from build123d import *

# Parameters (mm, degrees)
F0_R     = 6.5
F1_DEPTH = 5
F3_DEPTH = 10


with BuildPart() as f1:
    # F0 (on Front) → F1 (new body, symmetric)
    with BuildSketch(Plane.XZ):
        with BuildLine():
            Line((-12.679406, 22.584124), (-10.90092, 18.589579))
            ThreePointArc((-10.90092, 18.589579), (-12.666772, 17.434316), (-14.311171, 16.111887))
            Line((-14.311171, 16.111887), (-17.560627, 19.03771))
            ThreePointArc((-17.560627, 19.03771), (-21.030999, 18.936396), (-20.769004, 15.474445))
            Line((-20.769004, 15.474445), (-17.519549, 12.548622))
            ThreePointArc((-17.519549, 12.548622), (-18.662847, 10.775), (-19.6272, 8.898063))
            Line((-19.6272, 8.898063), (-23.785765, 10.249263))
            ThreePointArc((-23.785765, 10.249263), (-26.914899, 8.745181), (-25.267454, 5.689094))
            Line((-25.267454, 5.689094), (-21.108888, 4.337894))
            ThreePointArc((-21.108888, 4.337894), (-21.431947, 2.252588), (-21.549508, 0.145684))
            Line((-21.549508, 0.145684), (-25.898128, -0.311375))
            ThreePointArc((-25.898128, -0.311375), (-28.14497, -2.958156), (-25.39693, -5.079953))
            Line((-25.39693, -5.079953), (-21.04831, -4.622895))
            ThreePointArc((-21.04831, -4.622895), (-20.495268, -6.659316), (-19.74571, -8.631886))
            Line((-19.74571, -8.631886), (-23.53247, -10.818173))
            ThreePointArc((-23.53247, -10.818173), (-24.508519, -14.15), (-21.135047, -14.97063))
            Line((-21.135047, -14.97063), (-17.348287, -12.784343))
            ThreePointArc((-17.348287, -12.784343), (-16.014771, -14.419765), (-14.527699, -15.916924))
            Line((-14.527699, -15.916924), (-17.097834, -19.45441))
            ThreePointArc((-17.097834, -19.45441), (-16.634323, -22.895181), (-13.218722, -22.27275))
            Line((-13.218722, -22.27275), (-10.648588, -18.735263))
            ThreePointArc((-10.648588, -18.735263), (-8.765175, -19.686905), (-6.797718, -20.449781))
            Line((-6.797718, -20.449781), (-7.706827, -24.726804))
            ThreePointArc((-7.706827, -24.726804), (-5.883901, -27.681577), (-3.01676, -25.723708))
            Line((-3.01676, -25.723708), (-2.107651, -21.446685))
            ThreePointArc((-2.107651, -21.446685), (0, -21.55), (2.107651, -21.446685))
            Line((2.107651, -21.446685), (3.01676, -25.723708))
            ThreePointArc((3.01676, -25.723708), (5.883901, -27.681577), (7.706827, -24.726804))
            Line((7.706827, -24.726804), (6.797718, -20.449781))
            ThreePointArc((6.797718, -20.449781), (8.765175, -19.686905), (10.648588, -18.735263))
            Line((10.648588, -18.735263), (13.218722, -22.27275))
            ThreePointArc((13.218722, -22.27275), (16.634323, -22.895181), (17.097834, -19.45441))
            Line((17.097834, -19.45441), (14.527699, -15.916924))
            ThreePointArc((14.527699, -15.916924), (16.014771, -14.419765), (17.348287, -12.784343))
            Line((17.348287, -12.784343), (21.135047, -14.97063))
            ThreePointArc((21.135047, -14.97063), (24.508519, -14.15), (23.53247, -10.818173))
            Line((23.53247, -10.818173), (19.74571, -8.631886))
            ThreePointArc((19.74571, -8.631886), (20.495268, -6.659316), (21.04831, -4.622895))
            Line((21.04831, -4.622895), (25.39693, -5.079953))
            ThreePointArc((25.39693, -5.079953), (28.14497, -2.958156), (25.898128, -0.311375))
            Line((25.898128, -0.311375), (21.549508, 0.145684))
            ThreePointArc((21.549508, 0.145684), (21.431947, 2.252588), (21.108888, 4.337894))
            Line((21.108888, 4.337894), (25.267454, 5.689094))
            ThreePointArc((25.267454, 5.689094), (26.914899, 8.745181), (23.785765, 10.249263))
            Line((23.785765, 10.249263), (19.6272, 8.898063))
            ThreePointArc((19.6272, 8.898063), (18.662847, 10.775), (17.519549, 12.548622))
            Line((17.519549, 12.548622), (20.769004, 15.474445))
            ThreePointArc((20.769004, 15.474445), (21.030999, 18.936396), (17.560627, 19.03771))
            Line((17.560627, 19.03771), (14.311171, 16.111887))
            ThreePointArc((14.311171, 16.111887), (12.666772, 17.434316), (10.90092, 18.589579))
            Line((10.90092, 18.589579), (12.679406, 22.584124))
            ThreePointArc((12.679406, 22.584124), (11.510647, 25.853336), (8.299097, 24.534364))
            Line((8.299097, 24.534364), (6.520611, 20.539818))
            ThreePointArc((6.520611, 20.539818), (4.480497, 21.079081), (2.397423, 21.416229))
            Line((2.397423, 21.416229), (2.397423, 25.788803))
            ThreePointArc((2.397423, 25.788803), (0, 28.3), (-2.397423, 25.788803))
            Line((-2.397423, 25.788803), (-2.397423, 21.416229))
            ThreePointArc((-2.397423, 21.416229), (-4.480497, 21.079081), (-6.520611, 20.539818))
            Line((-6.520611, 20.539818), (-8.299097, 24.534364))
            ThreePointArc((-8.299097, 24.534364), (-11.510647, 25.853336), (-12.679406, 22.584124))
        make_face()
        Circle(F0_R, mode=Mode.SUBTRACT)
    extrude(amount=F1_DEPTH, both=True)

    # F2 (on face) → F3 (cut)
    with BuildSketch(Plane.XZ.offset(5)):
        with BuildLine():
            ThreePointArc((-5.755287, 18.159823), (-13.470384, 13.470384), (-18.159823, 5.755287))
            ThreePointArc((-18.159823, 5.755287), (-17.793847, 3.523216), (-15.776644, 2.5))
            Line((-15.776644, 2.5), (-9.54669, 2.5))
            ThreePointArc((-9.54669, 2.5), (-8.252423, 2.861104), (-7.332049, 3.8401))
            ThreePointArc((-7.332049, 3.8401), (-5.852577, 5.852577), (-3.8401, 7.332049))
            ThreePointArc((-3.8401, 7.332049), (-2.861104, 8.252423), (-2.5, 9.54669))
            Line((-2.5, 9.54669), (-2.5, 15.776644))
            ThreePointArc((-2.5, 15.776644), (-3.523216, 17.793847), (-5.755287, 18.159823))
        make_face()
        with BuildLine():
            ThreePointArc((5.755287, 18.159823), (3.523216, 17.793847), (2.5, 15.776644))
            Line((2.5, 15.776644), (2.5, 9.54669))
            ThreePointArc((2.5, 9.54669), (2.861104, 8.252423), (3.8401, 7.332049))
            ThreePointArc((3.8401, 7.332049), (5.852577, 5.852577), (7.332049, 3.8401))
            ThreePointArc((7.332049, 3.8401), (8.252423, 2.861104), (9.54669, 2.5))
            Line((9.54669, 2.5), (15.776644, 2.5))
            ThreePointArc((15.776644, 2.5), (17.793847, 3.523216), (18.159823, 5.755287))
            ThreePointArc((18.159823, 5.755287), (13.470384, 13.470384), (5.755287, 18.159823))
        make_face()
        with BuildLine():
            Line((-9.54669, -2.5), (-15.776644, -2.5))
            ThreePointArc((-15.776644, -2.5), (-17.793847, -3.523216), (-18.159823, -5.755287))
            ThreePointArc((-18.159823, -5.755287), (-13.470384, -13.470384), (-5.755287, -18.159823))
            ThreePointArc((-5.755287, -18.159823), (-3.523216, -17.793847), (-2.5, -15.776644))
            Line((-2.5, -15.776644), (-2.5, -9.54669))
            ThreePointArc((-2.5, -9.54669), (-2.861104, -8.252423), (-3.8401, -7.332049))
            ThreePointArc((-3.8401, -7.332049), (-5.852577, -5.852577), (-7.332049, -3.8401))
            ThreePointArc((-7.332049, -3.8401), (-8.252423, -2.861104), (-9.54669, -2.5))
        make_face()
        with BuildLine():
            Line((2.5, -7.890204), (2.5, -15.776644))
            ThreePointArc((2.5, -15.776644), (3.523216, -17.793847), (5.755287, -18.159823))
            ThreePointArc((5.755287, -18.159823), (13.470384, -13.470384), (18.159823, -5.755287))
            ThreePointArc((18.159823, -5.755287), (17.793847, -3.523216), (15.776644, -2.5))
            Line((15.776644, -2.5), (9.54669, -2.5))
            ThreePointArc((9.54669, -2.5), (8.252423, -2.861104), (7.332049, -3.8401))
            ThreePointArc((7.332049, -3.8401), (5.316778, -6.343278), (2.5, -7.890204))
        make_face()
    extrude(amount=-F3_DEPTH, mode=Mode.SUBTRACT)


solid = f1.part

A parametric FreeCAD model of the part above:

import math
import FreeCAD as App
import Part
import Sketcher
from FreeCAD import Vector
Q = App.Units.Quantity

doc = App.newDocument("Part")
params = doc.addObject("Spreadsheet::Sheet", "Params")
for row, (alias, value) in enumerate([
    ("sketch1_diameter", "13 mm"),
    ("sketch1_radius", "2.4 mm"),
    ("pad1_length", "10 mm"),
    ("sketch2_radius", "2.5 mm"),
    ("sketch2_radius2", "2.499998 mm"),
    ("sketch2_radius3", "19.050002 mm"),
    ("pocket1_length", "10 mm"),
], start=1):
    params.set(f"A{row}", alias)
    params.set(f"B{row}", "=" + value)
    params.setAlias(f"B{row}", alias)

body = doc.addObject("PartDesign::Body", "Body")

# Sketch on XZ plane
sketch1 = doc.addObject("Sketcher::SketchObject", "Sketch")
body.addObject(sketch1)
sketch1.AttachmentSupport = (doc.XZ_Plane, [""])
sketch1.MapMode = "FlatFace"
sketch1.addGeometry([
    Part.LineSegment(Vector(-12.679406, 22.584124, 0), Vector(-10.90092, 18.589579, 0)),  # 0
    Part.ArcOfCircle(Part.Circle(Vector(0.000067, -0.000094, 0), Vector(0, 0, 1), 21.550115), math.radians(120.387364), math.radians(131.612627)),  # 1
    Part.LineSegment(Vector(-14.311171, 16.111887, 0), Vector(-17.560627, 19.03771, 0)),  # 2
    Part.ArcOfCircle(Part.Circle(Vector(-19.247451, 17.330483, 0), Vector(0, 0, 1), 2.4), math.radians(45.344423), math.radians(230.655598)),  # 3
    Part.LineSegment(Vector(-20.769004, 15.474445, 0), Vector(-17.519549, 12.548622, 0)),  # 4
    Part.ArcOfCircle(Part.Circle(Vector(0.000105, -0.00006, 0), Vector(0, 0, 1), 21.550121), math.radians(144.387372), math.radians(155.612633)),  # 5
    Part.LineSegment(Vector(-19.6272, 8.898063, 0), Vector(-23.785765, 10.249263, 0)),  # 6
    Part.ArcOfCircle(Part.Circle(Vector(-24.632363, 8.00354, 0), Vector(0, 0, 1), 2.4), math.radians(69.344434), math.radians(254.65556)),  # 7
    Part.LineSegment(Vector(-25.267454, 5.689094, 0), Vector(-21.108888, 4.337894, 0)),  # 8
    Part.ArcOfCircle(Part.Circle(Vector(-0.000034, -0.000001, 0), Vector(0, 0, 1), 21.549966), math.radians(168.387316), math.radians(179.612657)),  # 9
    Part.LineSegment(Vector(-21.549508, 0.145684, 0), Vector(-25.898128, -0.311375, 0)),  # 10
    Part.ArcOfCircle(Part.Circle(Vector(-25.758118, -2.707287, 0), Vector(0, 0, 1), 2.4), math.radians(93.344398), math.radians(278.655608)),  # 11
    Part.LineSegment(Vector(-25.39693, -5.079953, 0), Vector(-21.04831, -4.622895, 0)),  # 12
    Part.ArcOfCircle(Part.Circle(Vector(0.000073, 0.000023, 0), Vector(0, 0, 1), 21.550076), math.radians(-167.612644), math.radians(-156.387359)),  # 13
    Part.LineSegment(Vector(-19.74571, -8.631886, 0), Vector(-23.53247, -10.818173, 0)),  # 14
    Part.ArcOfCircle(Part.Circle(Vector(-22.430058, -12.95, 0), Vector(0, 0, 1), 2.4), math.radians(117.344417), math.radians(302.6556)),  # 15
    Part.LineSegment(Vector(-21.135047, -14.97063, 0), Vector(-17.348287, -12.784343, 0)),  # 16
    Part.ArcOfCircle(Part.Circle(Vector(-0.000052, -0.00005, 0), Vector(0, 0, 1), 21.549928), math.radians(-143.612688), math.radians(-132.387324)),  # 17
    Part.LineSegment(Vector(-14.527699, -15.916924, 0), Vector(-17.097834, -19.45441, 0)),  # 18
    Part.ArcOfCircle(Part.Circle(Vector(-15.223638, -20.95354, 0), Vector(0, 0, 1), 2.4), math.radians(141.344422), math.radians(326.655575)),  # 19
    Part.LineSegment(Vector(-13.218722, -22.27275, 0), Vector(-10.648588, -18.735263, 0)),  # 20
    Part.ArcOfCircle(Part.Circle(Vector(-0.000022, -0.000052, 0), Vector(0, 0, 1), 21.549944), math.radians(-119.612679), math.radians(-108.387326)),  # 21
    Part.LineSegment(Vector(-6.797718, -20.449781, 0), Vector(-7.706827, -24.726804, 0)),  # 22
    Part.ArcOfCircle(Part.Circle(Vector(-5.384913, -25.334023, 0), Vector(0, 0, 1), 2.4), math.radians(165.344435), math.radians(350.655577)),  # 23
    Part.LineSegment(Vector(-3.01676, -25.723708, 0), Vector(-2.107651, -21.446685, 0)),  # 24
    Part.ArcOfCircle(Part.Circle(Vector(0, -0.000047, 0), Vector(0, 0, 1), 21.549953), math.radians(-95.612674), math.radians(-84.387326)),  # 25
    Part.LineSegment(Vector(2.107651, -21.446685, 0), Vector(3.01676, -25.723708, 0)),  # 26
    Part.ArcOfCircle(Part.Circle(Vector(5.384913, -25.334023, 0), Vector(0, 0, 1), 2.4), math.radians(-170.655577), math.radians(14.655565)),  # 27
    Part.LineSegment(Vector(7.706827, -24.726804, 0), Vector(6.797718, -20.449781, 0)),  # 28
    Part.ArcOfCircle(Part.Circle(Vector(0.000022, -0.000052, 0), Vector(0, 0, 1), 21.549944), math.radians(-71.612674), math.radians(-60.387321)),  # 29
    Part.LineSegment(Vector(10.648588, -18.735263, 0), Vector(13.218722, -22.27275, 0)),  # 30
    Part.ArcOfCircle(Part.Circle(Vector(15.223638, -20.95354, 0), Vector(0, 0, 1), 2.4), math.radians(-146.655575), math.radians(38.655578)),  # 31
    Part.LineSegment(Vector(17.097834, -19.45441, 0), Vector(14.527699, -15.916924, 0)),  # 32
    Part.ArcOfCircle(Part.Circle(Vector(0.000052, -0.00005, 0), Vector(0, 0, 1), 21.549928), math.radians(-47.612676), math.radians(-36.387312)),  # 33
    Part.LineSegment(Vector(17.348287, -12.784343, 0), Vector(21.135047, -14.97063, 0)),  # 34
    Part.ArcOfCircle(Part.Circle(Vector(22.430058, -12.95, 0), Vector(0, 0, 1), 2.4), math.radians(-122.6556), math.radians(62.655583)),  # 35
    Part.LineSegment(Vector(23.53247, -10.818173, 0), Vector(19.74571, -8.631886, 0)),  # 36
    Part.ArcOfCircle(Part.Circle(Vector(-0.000073, 0.000023, 0), Vector(0, 0, 1), 21.550076), math.radians(-23.612641), math.radians(-12.387356)),  # 37
    Part.LineSegment(Vector(21.04831, -4.622895, 0), Vector(25.39693, -5.079953, 0)),  # 38
    Part.ArcOfCircle(Part.Circle(Vector(25.758118, -2.707287, 0), Vector(0, 0, 1), 2.4), math.radians(-98.655608), math.radians(86.655602)),  # 39
    Part.LineSegment(Vector(25.898128, -0.311375, 0), Vector(21.549508, 0.145684, 0)),  # 40
    Part.ArcOfCircle(Part.Circle(Vector(0.000034, -0.000001, 0), Vector(0, 0, 1), 21.549966), math.radians(0.387343), math.radians(11.612684)),  # 41
    Part.LineSegment(Vector(21.108888, 4.337894, 0), Vector(25.267454, 5.689094, 0)),  # 42
    Part.ArcOfCircle(Part.Circle(Vector(24.632363, 8.00354, 0), Vector(0, 0, 1), 2.4), math.radians(-74.65556), math.radians(110.655566)),  # 43
    Part.LineSegment(Vector(23.785765, 10.249263, 0), Vector(19.6272, 8.898063, 0)),  # 44
    Part.ArcOfCircle(Part.Circle(Vector(-0.000105, -0.00006, 0), Vector(0, 0, 1), 21.550121), math.radians(24.387367), math.radians(35.612628)),  # 45
    Part.LineSegment(Vector(17.519549, 12.548622, 0), Vector(20.769004, 15.474445, 0)),  # 46
    Part.ArcOfCircle(Part.Circle(Vector(19.247451, 17.330483, 0), Vector(0, 0, 1), 2.4), math.radians(-50.655598), math.radians(134.655577)),  # 47
    Part.LineSegment(Vector(17.560627, 19.03771, 0), Vector(14.311171, 16.111887, 0)),  # 48
    Part.ArcOfCircle(Part.Circle(Vector(-0.000067, -0.000094, 0), Vector(0, 0, 1), 21.550115), math.radians(48.387373), math.radians(59.612636)),  # 49
    Part.LineSegment(Vector(10.90092, 18.589579, 0), Vector(12.679406, 22.584124, 0)),  # 50
    Part.ArcOfCircle(Part.Circle(Vector(10.534479, 23.660827, 0), Vector(0, 0, 1), 2.4), math.radians(-26.655574), math.radians(158.655556)),  # 51
    Part.LineSegment(Vector(8.299097, 24.534364, 0), Vector(6.520611, 20.539818, 0)),  # 52
    Part.ArcOfCircle(Part.Circle(Vector(0.000012, 0.00006, 0), Vector(0, 0, 1), 21.549939), math.radians(72.387317), math.radians(83.612674)),  # 53
    Part.LineSegment(Vector(2.397423, 21.416229, 0), Vector(2.397423, 25.788803, 0)),  # 54
    Part.ArcOfCircle(Part.Circle(Vector(0, 25.9, 0), Vector(0, 0, 1), 2.4), math.radians(-2.655574), math.radians(182.655574)),  # 55
    Part.LineSegment(Vector(-2.397423, 25.788803, 0), Vector(-2.397423, 21.416229, 0)),  # 56
    Part.ArcOfCircle(Part.Circle(Vector(-0.000012, 0.00006, 0), Vector(0, 0, 1), 21.549939), math.radians(96.387326), math.radians(107.612683)),  # 57
    Part.LineSegment(Vector(-6.520611, 20.539818, 0), Vector(-8.299097, 24.534364, 0)),  # 58
    Part.ArcOfCircle(Part.Circle(Vector(-10.534479, 23.660827, 0), Vector(0, 0, 1), 2.4), math.radians(21.344444), math.radians(206.655574)),  # 59
    Part.Circle(Vector(0, 0, 0), Vector(0, 0, 1), 6.5),  # 60
], False)
sketch1.addConstraint([
    Sketcher.Constraint("Coincident", 0, 2, 1, 1),
    Sketcher.Constraint("Coincident", 1, 2, 2, 1),
    Sketcher.Constraint("Coincident", 2, 2, 3, 1),
    Sketcher.Constraint("Coincident", 3, 2, 4, 1),
    Sketcher.Constraint("Coincident", 4, 2, 5, 1),
    Sketcher.Constraint("Coincident", 5, 2, 6, 1),
    Sketcher.Constraint("Coincident", 6, 2, 7, 1),
    Sketcher.Constraint("Coincident", 7, 2, 8, 1),
    Sketcher.Constraint("Coincident", 8, 2, 9, 1),
    Sketcher.Constraint("Coincident", 9, 2, 10, 1),
    Sketcher.Constraint("Coincident", 10, 2, 11, 1),
    Sketcher.Constraint("Coincident", 11, 2, 12, 1),
    Sketcher.Constraint("Coincident", 12, 2, 13, 1),
    Sketcher.Constraint("Coincident", 13, 2, 14, 1),
    Sketcher.Constraint("Coincident", 14, 2, 15, 1),
    Sketcher.Constraint("Coincident", 15, 2, 16, 1),
    Sketcher.Constraint("Coincident", 16, 2, 17, 1),
    Sketcher.Constraint("Coincident", 17, 2, 18, 1),
    Sketcher.Constraint("Coincident", 18, 2, 19, 1),
    Sketcher.Constraint("Coincident", 19, 2, 20, 1),
    Sketcher.Constraint("Coincident", 20, 2, 21, 1),
    Sketcher.Constraint("Coincident", 21, 2, 22, 1),
    Sketcher.Constraint("Coincident", 22, 2, 23, 1),
    Sketcher.Constraint("Coincident", 23, 2, 24, 1),
    Sketcher.Constraint("Coincident", 24, 2, 25, 1),
    Sketcher.Constraint("Coincident", 25, 2, 26, 1),
    Sketcher.Constraint("Coincident", 26, 2, 27, 1),
    Sketcher.Constraint("Coincident", 27, 2, 28, 1),
    Sketcher.Constraint("Coincident", 28, 2, 29, 1),
    Sketcher.Constraint("Coincident", 29, 2, 30, 1),
    Sketcher.Constraint("Coincident", 30, 2, 31, 1),
    Sketcher.Constraint("Coincident", 31, 2, 32, 1),
    Sketcher.Constraint("Coincident", 32, 2, 33, 1),
    Sketcher.Constraint("Coincident", 33, 2, 34, 1),
    Sketcher.Constraint("Coincident", 34, 2, 35, 1),
    Sketcher.Constraint("Coincident", 35, 2, 36, 1),
    Sketcher.Constraint("Coincident", 36, 2, 37, 1),
    Sketcher.Constraint("Coincident", 37, 2, 38, 1),
    Sketcher.Constraint("Coincident", 38, 2, 39, 1),
    Sketcher.Constraint("Coincident", 39, 2, 40, 1),
    Sketcher.Constraint("Coincident", 40, 2, 41, 1),
    Sketcher.Constraint("Coincident", 41, 2, 42, 1),
    Sketcher.Constraint("Coincident", 42, 2, 43, 1),
    Sketcher.Constraint("Coincident", 43, 2, 44, 1),
    Sketcher.Constraint("Coincident", 44, 2, 45, 1),
    Sketcher.Constraint("Coincident", 45, 2, 46, 1),
    Sketcher.Constraint("Coincident", 46, 2, 47, 1),
    Sketcher.Constraint("Coincident", 47, 2, 48, 1),
    Sketcher.Constraint("Coincident", 48, 2, 49, 1),
    Sketcher.Constraint("Coincident", 49, 2, 50, 1),
    Sketcher.Constraint("Coincident", 50, 2, 51, 1),
    Sketcher.Constraint("Coincident", 51, 2, 52, 1),
    Sketcher.Constraint("Coincident", 52, 2, 53, 1),
    Sketcher.Constraint("Coincident", 53, 2, 54, 1),
    Sketcher.Constraint("Coincident", 54, 2, 55, 1),
    Sketcher.Constraint("Coincident", 55, 2, 56, 1),
    Sketcher.Constraint("Coincident", 56, 2, 57, 1),
    Sketcher.Constraint("Coincident", 57, 2, 58, 1),
    Sketcher.Constraint("Coincident", 58, 2, 59, 1),
    Sketcher.Constraint("Coincident", 59, 2, 0, 1),
    Sketcher.Constraint("Vertical", 54),
    Sketcher.Constraint("Vertical", 56),
    Sketcher.Constraint("Coincident", 60, 3, -1, 1),
    Sketcher.Constraint("Equal", 3, 7),
    Sketcher.Constraint("Equal", 7, 11),
    Sketcher.Constraint("Equal", 11, 15),
    Sketcher.Constraint("Equal", 15, 19),
    Sketcher.Constraint("Equal", 19, 23),
    Sketcher.Constraint("Equal", 23, 27),
    Sketcher.Constraint("Equal", 21, 29),
    Sketcher.Constraint("Equal", 27, 31),
    Sketcher.Constraint("Equal", 17, 33),
    Sketcher.Constraint("Equal", 31, 35),
    Sketcher.Constraint("Equal", 13, 37),
    Sketcher.Constraint("Equal", 35, 39),
    Sketcher.Constraint("Equal", 9, 41),
    Sketcher.Constraint("Equal", 39, 43),
    Sketcher.Constraint("Equal", 5, 45),
    Sketcher.Constraint("Equal", 43, 47),
    Sketcher.Constraint("Equal", 1, 49),
    Sketcher.Constraint("Equal", 47, 51),
    Sketcher.Constraint("Equal", 51, 55),
    Sketcher.Constraint("Equal", 53, 57),
    Sketcher.Constraint("Equal", 55, 59),
    Sketcher.Constraint("Symmetric", 9, 3, 41, 3, -1, 1),
    Sketcher.Constraint("Symmetric", 23, 3, 27, 3, -2),
    Sketcher.Constraint("Symmetric", 21, 3, 29, 3, -2),
    Sketcher.Constraint("Symmetric", 19, 3, 31, 3, -2),
    Sketcher.Constraint("Symmetric", 17, 3, 33, 3, -2),
    Sketcher.Constraint("Symmetric", 15, 3, 35, 3, -2),
    Sketcher.Constraint("Symmetric", 13, 3, 37, 3, -2),
    Sketcher.Constraint("Symmetric", 11, 3, 39, 3, -2),
    Sketcher.Constraint("Symmetric", 7, 3, 43, 3, -2),
    Sketcher.Constraint("Symmetric", 5, 3, 45, 3, -2),
    Sketcher.Constraint("Symmetric", 3, 3, 47, 3, -2),
    Sketcher.Constraint("Symmetric", 1, 3, 49, 3, -2),
    Sketcher.Constraint("Symmetric", 53, 3, 57, 3, -2),
    Sketcher.Constraint("Symmetric", 51, 3, 59, 3, -2),
    Sketcher.Constraint("Symmetric", 24, 2, 25, 2, -2),
    Sketcher.Constraint("Symmetric", 9, 2, 40, 2, -2),
    Sketcher.Constraint("Symmetric", 54, 2, 55, 2, -2),
    Sketcher.Constraint("Parallel", 2, 4),
    Sketcher.Constraint("Parallel", 6, 8),
    Sketcher.Constraint("Parallel", 10, 12),
    Sketcher.Constraint("Parallel", 14, 16),
    Sketcher.Constraint("Parallel", 18, 20),
    Sketcher.Constraint("Parallel", 22, 24),
    Sketcher.Constraint("Parallel", 26, 28),
    Sketcher.Constraint("Parallel", 30, 32),
    Sketcher.Constraint("Parallel", 34, 36),
    Sketcher.Constraint("Parallel", 38, 40),
    Sketcher.Constraint("Parallel", 42, 44),
    Sketcher.Constraint("Parallel", 46, 48),
    Sketcher.Constraint("Parallel", 50, 52),
    Sketcher.Constraint("Parallel", 0, 58),
    Sketcher.Constraint("Horizontal", 17, 3, 21, 3),
    Sketcher.Constraint("Horizontal", 23, 2, 26, 2),
    Sketcher.Constraint("Horizontal", 22, 2, 27, 2),
    Sketcher.Constraint("Horizontal", 20, 2, 29, 2),
    Sketcher.Constraint("Horizontal", 19, 2, 30, 2),
    Sketcher.Constraint("Horizontal", 18, 2, 31, 2),
    Sketcher.Constraint("Horizontal", 16, 2, 33, 2),
    Sketcher.Constraint("Horizontal", 15, 2, 34, 2),
    Sketcher.Constraint("Horizontal", 14, 2, 35, 2),
    Sketcher.Constraint("Horizontal", 12, 2, 37, 2),
    Sketcher.Constraint("Horizontal", 11, 2, 38, 2),
    Sketcher.Constraint("Horizontal", 8, 2, 41, 2),
    Sketcher.Constraint("Horizontal", 7, 2, 42, 2),
    Sketcher.Constraint("Horizontal", 6, 2, 43, 2),
    Sketcher.Constraint("Horizontal", 4, 2, 45, 2),
    Sketcher.Constraint("Horizontal", 3, 2, 46, 2),
    Sketcher.Constraint("Horizontal", 2, 2, 47, 2),
    Sketcher.Constraint("Horizontal", 0, 2, 49, 2),
    Sketcher.Constraint("Horizontal", 52, 2, 57, 2),
    Sketcher.Constraint("Horizontal", 51, 2, 58, 2),
    Sketcher.Constraint("Equal", 0, 2),
    Sketcher.Constraint("Equal", 2, 4),
    Sketcher.Constraint("Equal", 4, 6),
    Sketcher.Constraint("Equal", 6, 8),
    Sketcher.Constraint("Equal", 8, 10),
    Sketcher.Constraint("Equal", 10, 12),
    Sketcher.Constraint("Equal", 12, 14),
    Sketcher.Constraint("Equal", 14, 16),
    Sketcher.Constraint("Equal", 16, 18),
    Sketcher.Constraint("Equal", 18, 20),
    Sketcher.Constraint("Equal", 20, 22),
    Sketcher.Constraint("Equal", 22, 24),
    Sketcher.Constraint("Equal", 50, 52),
    Sketcher.Constraint("Diameter", 60, 13.0),
    Sketcher.Constraint("Radius", 3, 2.4),
    Sketcher.Constraint("Angle", 0, Q("-66 deg")),
    Sketcher.Constraint("Angle", 2, Q("138.000003 deg")),
    Sketcher.Constraint("Angle", 6, Q("161.999996 deg")),
    Sketcher.Constraint("Angle", 10, Q("-173.999992 deg")),
    Sketcher.Constraint("Angle", 14, Q("-149.999999 deg")),
    Sketcher.Constraint("Angle", 18, Q("-126.00001 deg")),
    Sketcher.Constraint("Angle", 22, Q("-101.999996 deg")),
    Sketcher.Constraint("DistanceY", -1, 1, 55, 3, 25.9),
    Sketcher.Constraint("DistanceY", 15, 3, -1, 1, 12.95),
    Sketcher.Constraint("Radius", 5, 21.550121),
    Sketcher.Constraint("Radius", 53, 21.549939),
    Sketcher.Constraint("Radius", 1, 21.550115),
    Sketcher.Constraint("Radius", 9, 21.549966),
    Sketcher.Constraint("Radius", 13, 21.550076),
    Sketcher.Constraint("Radius", 17, 21.549928),
    Sketcher.Constraint("Radius", 21, 21.549944),
    Sketcher.Constraint("Radius", 25, 21.549953),
    Sketcher.Constraint("DistanceX", 5, 2, -1, 1, 19.6272),
    Sketcher.Constraint("DistanceX", 17, 2, -1, 1, 14.527699),
    Sketcher.Constraint("DistanceY", 54, 1, 54, 2, 4.372574),
    Sketcher.Constraint("DistanceX", 3, 3, -1, 1, 19.247451),
    Sketcher.Constraint("DistanceY", -1, 1, 7, 3, 8.00354),
    Sketcher.Constraint("DistanceX", 15, 3, -1, 1, 22.430058),
    Sketcher.Constraint("DistanceY", 19, 3, -1, 1, 20.95354),
    Sketcher.Constraint("DistanceX", -1, 1, 51, 3, 10.534479),
    Sketcher.Constraint("DistanceX", 0, 2, -1, 1, 10.90092),
    Sketcher.Constraint("DistanceY", -1, 1, 0, 2, 18.589579),
    Sketcher.Constraint("DistanceX", 1, 2, -1, 1, 14.311171),
    Sketcher.Constraint("DistanceY", -1, 1, 2, 2, 19.03771),
    Sketcher.Constraint("DistanceX", 4, 2, -1, 1, 17.519549),
    Sketcher.Constraint("DistanceX", 8, 2, -1, 1, 21.108888),
    Sketcher.Constraint("DistanceX", 10, 2, -1, 1, 25.898128),
    Sketcher.Constraint("DistanceX", 11, 2, -1, 1, 25.39693),
    Sketcher.Constraint("DistanceX", 12, 2, -1, 1, 21.04831),
    Sketcher.Constraint("DistanceX", 13, 2, -1, 1, 19.74571),
    Sketcher.Constraint("DistanceY", 15, 2, -1, 1, 14.97063),
    Sketcher.Constraint("DistanceY", 18, 2, -1, 1, 19.45441),
    Sketcher.Constraint("DistanceY", 19, 2, -1, 1, 22.27275),
    Sketcher.Constraint("DistanceY", 21, 2, -1, 1, 20.449781),
    Sketcher.Constraint("DistanceX", 23, 2, -1, 1, 3.01676),
    Sketcher.Constraint("DistanceY", 23, 2, -1, 1, 25.723708),
    Sketcher.Constraint("DistanceX", -1, 1, 52, 2, 6.520611),
    Sketcher.Constraint("DistanceY", -1, 1, 53, 2, 21.416229),
    Sketcher.Constraint("DistanceX", -1, 1, 5, 3, 0.000105),
    Sketcher.Constraint("DistanceX", 11, 3, -1, 1, 25.758118),
])
sketch1.setExpression("Constraints[148]", "Params.sketch1_diameter")
sketch1.setExpression("Constraints[149]", "Params.sketch1_radius")
pad1 = doc.addObject("PartDesign::Pad", "Pad")
body.addObject(pad1)
pad1.Profile = sketch1
pad1.setExpression("Length", "Params.pad1_length")
pad1.Midplane = True

# Sketch on XZ plane
sketch2 = doc.addObject("Sketcher::SketchObject", "Sketch001")
body.addObject(sketch2)
sketch2.AttachmentSupport = (doc.XZ_Plane, [""])
sketch2.MapMode = "FlatFace"
sketch2.AttachmentOffset = App.Placement(Vector(0, 0, 5), App.Rotation())
sketch2.addGeometry([
    Part.ArcOfCircle(Part.Circle(Vector(0.000002, -0.000002, 0), Vector(0, 0, 1), 19.050002), math.radians(107.584671), math.radians(162.415329)),  # 0
    Part.ArcOfCircle(Part.Circle(Vector(-15.776644, 5, 0), Vector(0, 0, 1), 2.5), math.radians(162.415347), math.radians(269.999989)),  # 1
    Part.LineSegment(Vector(-15.776644, 2.5, 0), Vector(-9.54669, 2.5, 0)),  # 2
    Part.ArcOfCircle(Part.Circle(Vector(-9.546688, 4.999998, 0), Vector(0, 0, 1), 2.499998), math.radians(-90.00004), math.radians(-27.64291)),  # 3
    Part.ArcOfCircle(Part.Circle(Vector(-0.000004, 0.000004, 0), Vector(0, 0, 1), 8.276788), math.radians(117.642915), math.radians(152.357085)),  # 4
    Part.ArcOfCircle(Part.Circle(Vector(-4.999998, 9.546688, 0), Vector(0, 0, 1), 2.499998), math.radians(-62.35709), math.radians(0.00004)),  # 5
    Part.LineSegment(Vector(-2.5, 9.54669, 0), Vector(-2.5, 15.776644, 0)),  # 6
    Part.ArcOfCircle(Part.Circle(Vector(-5, 15.776644, 0), Vector(0, 0, 1), 2.5), math.radians(0.000011), math.radians(107.584653)),  # 7
    Part.ArcOfCircle(Part.Circle(Vector(5, 15.776644, 0), Vector(0, 0, 1), 2.5), math.radians(72.415347), math.radians(179.999989)),  # 8
    Part.LineSegment(Vector(2.5, 15.776644, 0), Vector(2.5, 9.54669, 0)),  # 9
    Part.ArcOfCircle(Part.Circle(Vector(4.999998, 9.546688, 0), Vector(0, 0, 1), 2.499998), math.radians(179.99996), math.radians(242.35709)),  # 10
    Part.ArcOfCircle(Part.Circle(Vector(0.000004, 0.000004, 0), Vector(0, 0, 1), 8.276788), math.radians(27.642915), math.radians(62.357085)),  # 11
    Part.ArcOfCircle(Part.Circle(Vector(9.546688, 4.999998, 0), Vector(0, 0, 1), 2.499998), math.radians(-152.35709), math.radians(-89.99996)),  # 12
    Part.LineSegment(Vector(9.54669, 2.5, 0), Vector(15.776644, 2.5, 0)),  # 13
    Part.ArcOfCircle(Part.Circle(Vector(15.776644, 5, 0), Vector(0, 0, 1), 2.5), math.radians(-89.999989), math.radians(17.584653)),  # 14
    Part.ArcOfCircle(Part.Circle(Vector(-0.000002, -0.000002, 0), Vector(0, 0, 1), 19.050002), math.radians(17.584671), math.radians(72.415329)),  # 15
    Part.LineSegment(Vector(-9.54669, -2.5, 0), Vector(-15.776644, -2.5, 0)),  # 16
    Part.ArcOfCircle(Part.Circle(Vector(-15.776644, -5, 0), Vector(0, 0, 1), 2.5), math.radians(90.000011), math.radians(197.584653)),  # 17
    Part.ArcOfCircle(Part.Circle(Vector(0.000002, 0.000002, 0), Vector(0, 0, 1), 19.050002), math.radians(-162.415329), math.radians(-107.584671)),  # 18
    Part.ArcOfCircle(Part.Circle(Vector(-5, -15.776644, 0), Vector(0, 0, 1), 2.5), math.radians(-107.584653), math.radians(-0.000011)),  # 19
    Part.LineSegment(Vector(-2.5, -15.776644, 0), Vector(-2.5, -9.54669, 0)),  # 20
    Part.ArcOfCircle(Part.Circle(Vector(-4.999998, -9.546688, 0), Vector(0, 0, 1), 2.499998), math.radians(-0.00004), math.radians(62.35709)),  # 21
    Part.ArcOfCircle(Part.Circle(Vector(-0.000004, -0.000004, 0), Vector(0, 0, 1), 8.276788), math.radians(-152.357085), math.radians(-117.642915)),  # 22
    Part.ArcOfCircle(Part.Circle(Vector(-9.546688, -4.999998, 0), Vector(0, 0, 1), 2.499998), math.radians(27.64291), math.radians(90.00004)),  # 23
    Part.LineSegment(Vector(2.5, -7.890204, 0), Vector(2.5, -15.776644, 0)),  # 24
    Part.ArcOfCircle(Part.Circle(Vector(5, -15.776644, 0), Vector(0, 0, 1), 2.5), math.radians(-179.999989), math.radians(-72.415347)),  # 25
    Part.ArcOfCircle(Part.Circle(Vector(-0.000002, 0.000002, 0), Vector(0, 0, 1), 19.050002), math.radians(-72.415329), math.radians(-17.584671)),  # 26
    Part.ArcOfCircle(Part.Circle(Vector(15.776644, -5, 0), Vector(0, 0, 1), 2.5), math.radians(-17.584653), math.radians(89.999989)),  # 27
    Part.LineSegment(Vector(15.776644, -2.5, 0), Vector(9.54669, -2.5, 0)),  # 28
    Part.ArcOfCircle(Part.Circle(Vector(9.546688, -4.999998, 0), Vector(0, 0, 1), 2.499998), math.radians(89.99996), math.radians(152.35709)),  # 29
    Part.ArcOfCircle(Part.Circle(Vector(-0.000006, 0.000006, 0), Vector(0, 0, 1), 8.276802), math.radians(-72.419241), math.radians(-27.642945)),  # 30
], False)
sketch2.addConstraint([
    Sketcher.Constraint("Tangent", 0, 2, 1, 1),
    Sketcher.Constraint("Tangent", 1, 2, 2, 1),
    Sketcher.Constraint("Tangent", 2, 2, 3, 1),
    Sketcher.Constraint("Tangent", 3, 2, 4, 2),
    Sketcher.Constraint("Tangent", 4, 1, 5, 1),
    Sketcher.Constraint("Tangent", 5, 2, 6, 1),
    Sketcher.Constraint("Tangent", 6, 2, 7, 1),
    Sketcher.Constraint("Tangent", 7, 2, 0, 1),
    Sketcher.Constraint("Tangent", 8, 2, 9, 1),
    Sketcher.Constraint("Tangent", 9, 2, 10, 1),
    Sketcher.Constraint("Tangent", 10, 2, 11, 2),
    Sketcher.Constraint("Tangent", 11, 1, 12, 1),
    Sketcher.Constraint("Tangent", 12, 2, 13, 1),
    Sketcher.Constraint("Tangent", 13, 2, 14, 1),
    Sketcher.Constraint("Tangent", 14, 2, 15, 1),
    Sketcher.Constraint("Tangent", 15, 2, 8, 1),
    Sketcher.Constraint("Tangent", 16, 2, 17, 1),
    Sketcher.Constraint("Tangent", 17, 2, 18, 1),
    Sketcher.Constraint("Tangent", 18, 2, 19, 1),
    Sketcher.Constraint("Tangent", 19, 2, 20, 1),
    Sketcher.Constraint("Tangent", 20, 2, 21, 1),
    Sketcher.Constraint("Tangent", 21, 2, 22, 2),
    Sketcher.Constraint("Tangent", 22, 1, 23, 1),
    Sketcher.Constraint("Tangent", 23, 2, 16, 1),
    Sketcher.Constraint("Tangent", 24, 2, 25, 1),
    Sketcher.Constraint("Tangent", 25, 2, 26, 1),
    Sketcher.Constraint("Tangent", 26, 2, 27, 1),
    Sketcher.Constraint("Tangent", 27, 2, 28, 1),
    Sketcher.Constraint("Tangent", 28, 2, 29, 1),
    Sketcher.Constraint("Tangent", 29, 2, 30, 2),
    Sketcher.Constraint("Coincident", 30, 1, 24, 1),
    Sketcher.Constraint("Horizontal", 2),
    Sketcher.Constraint("Vertical", 6),
    Sketcher.Constraint("Vertical", 9),
    Sketcher.Constraint("Horizontal", 13),
    Sketcher.Constraint("Horizontal", 16),
    Sketcher.Constraint("Vertical", 20),
    Sketcher.Constraint("Vertical", 24),
    Sketcher.Constraint("Horizontal", 28),
    Sketcher.Constraint("Coincident", 0, 3, -1, 1),
    Sketcher.Constraint("Coincident", 4, 3, -1, 1),
    Sketcher.Constraint("Coincident", 11, 3, -1, 1),
    Sketcher.Constraint("Coincident", 15, 3, -1, 1),
    Sketcher.Constraint("Coincident", 18, 3, -1, 1),
    Sketcher.Constraint("Coincident", 22, 3, -1, 1),
    Sketcher.Constraint("Coincident", 26, 3, -1, 1),
    Sketcher.Constraint("Coincident", 30, 3, -1, 1),
    Sketcher.Constraint("Equal", 3, 5),
    Sketcher.Constraint("Equal", 1, 7),
    Sketcher.Constraint("Equal", 7, 8),
    Sketcher.Constraint("Equal", 5, 10),
    Sketcher.Constraint("Equal", 4, 11),
    Sketcher.Constraint("Equal", 10, 12),
    Sketcher.Constraint("Equal", 8, 14),
    Sketcher.Constraint("Equal", 0, 15),
    Sketcher.Constraint("Equal", 14, 17),
    Sketcher.Constraint("Equal", 15, 18),
    Sketcher.Constraint("Equal", 17, 19),
    Sketcher.Constraint("Equal", 12, 21),
    Sketcher.Constraint("Equal", 11, 22),
    Sketcher.Constraint("Equal", 21, 23),
    Sketcher.Constraint("Equal", 19, 25),
    Sketcher.Constraint("Equal", 18, 26),
    Sketcher.Constraint("Equal", 25, 27),
    Sketcher.Constraint("Equal", 23, 29),
    Sketcher.Constraint("Symmetric", 3, 3, 29, 3, -1, 1),
    Sketcher.Constraint("Horizontal", 7, 3, 8, 3),
    Sketcher.Constraint("Horizontal", 3, 3, 12, 3),
    Sketcher.Constraint("Horizontal", 19, 3, 25, 3),
    Sketcher.Constraint("Horizontal", 17, 3, 27, 3),
    Sketcher.Constraint("Vertical", 7, 3, 19, 3),
    Sketcher.Constraint("Equal", 28, 6),
    Sketcher.Constraint("Radius", 1, 2.5),
    Sketcher.Constraint("Radius", 3, 2.499998),
    Sketcher.Constraint("Radius", 0, 19.050002),
    Sketcher.Constraint("DistanceY", -1, 1, 1, 3, 5.0),
    Sketcher.Constraint("Radius", 30, 8.276802),
])
sketch2.setExpression("Constraints[72]", "Params.sketch2_radius")
sketch2.setExpression("Constraints[73]", "Params.sketch2_radius2")
sketch2.setExpression("Constraints[74]", "Params.sketch2_radius3")
pocket1 = doc.addObject("PartDesign::Pocket", "Pocket")
body.addObject(pocket1)
pocket1.Profile = sketch2
pocket1.setExpression("Length", "Params.pocket1_length")

doc.recompute()
